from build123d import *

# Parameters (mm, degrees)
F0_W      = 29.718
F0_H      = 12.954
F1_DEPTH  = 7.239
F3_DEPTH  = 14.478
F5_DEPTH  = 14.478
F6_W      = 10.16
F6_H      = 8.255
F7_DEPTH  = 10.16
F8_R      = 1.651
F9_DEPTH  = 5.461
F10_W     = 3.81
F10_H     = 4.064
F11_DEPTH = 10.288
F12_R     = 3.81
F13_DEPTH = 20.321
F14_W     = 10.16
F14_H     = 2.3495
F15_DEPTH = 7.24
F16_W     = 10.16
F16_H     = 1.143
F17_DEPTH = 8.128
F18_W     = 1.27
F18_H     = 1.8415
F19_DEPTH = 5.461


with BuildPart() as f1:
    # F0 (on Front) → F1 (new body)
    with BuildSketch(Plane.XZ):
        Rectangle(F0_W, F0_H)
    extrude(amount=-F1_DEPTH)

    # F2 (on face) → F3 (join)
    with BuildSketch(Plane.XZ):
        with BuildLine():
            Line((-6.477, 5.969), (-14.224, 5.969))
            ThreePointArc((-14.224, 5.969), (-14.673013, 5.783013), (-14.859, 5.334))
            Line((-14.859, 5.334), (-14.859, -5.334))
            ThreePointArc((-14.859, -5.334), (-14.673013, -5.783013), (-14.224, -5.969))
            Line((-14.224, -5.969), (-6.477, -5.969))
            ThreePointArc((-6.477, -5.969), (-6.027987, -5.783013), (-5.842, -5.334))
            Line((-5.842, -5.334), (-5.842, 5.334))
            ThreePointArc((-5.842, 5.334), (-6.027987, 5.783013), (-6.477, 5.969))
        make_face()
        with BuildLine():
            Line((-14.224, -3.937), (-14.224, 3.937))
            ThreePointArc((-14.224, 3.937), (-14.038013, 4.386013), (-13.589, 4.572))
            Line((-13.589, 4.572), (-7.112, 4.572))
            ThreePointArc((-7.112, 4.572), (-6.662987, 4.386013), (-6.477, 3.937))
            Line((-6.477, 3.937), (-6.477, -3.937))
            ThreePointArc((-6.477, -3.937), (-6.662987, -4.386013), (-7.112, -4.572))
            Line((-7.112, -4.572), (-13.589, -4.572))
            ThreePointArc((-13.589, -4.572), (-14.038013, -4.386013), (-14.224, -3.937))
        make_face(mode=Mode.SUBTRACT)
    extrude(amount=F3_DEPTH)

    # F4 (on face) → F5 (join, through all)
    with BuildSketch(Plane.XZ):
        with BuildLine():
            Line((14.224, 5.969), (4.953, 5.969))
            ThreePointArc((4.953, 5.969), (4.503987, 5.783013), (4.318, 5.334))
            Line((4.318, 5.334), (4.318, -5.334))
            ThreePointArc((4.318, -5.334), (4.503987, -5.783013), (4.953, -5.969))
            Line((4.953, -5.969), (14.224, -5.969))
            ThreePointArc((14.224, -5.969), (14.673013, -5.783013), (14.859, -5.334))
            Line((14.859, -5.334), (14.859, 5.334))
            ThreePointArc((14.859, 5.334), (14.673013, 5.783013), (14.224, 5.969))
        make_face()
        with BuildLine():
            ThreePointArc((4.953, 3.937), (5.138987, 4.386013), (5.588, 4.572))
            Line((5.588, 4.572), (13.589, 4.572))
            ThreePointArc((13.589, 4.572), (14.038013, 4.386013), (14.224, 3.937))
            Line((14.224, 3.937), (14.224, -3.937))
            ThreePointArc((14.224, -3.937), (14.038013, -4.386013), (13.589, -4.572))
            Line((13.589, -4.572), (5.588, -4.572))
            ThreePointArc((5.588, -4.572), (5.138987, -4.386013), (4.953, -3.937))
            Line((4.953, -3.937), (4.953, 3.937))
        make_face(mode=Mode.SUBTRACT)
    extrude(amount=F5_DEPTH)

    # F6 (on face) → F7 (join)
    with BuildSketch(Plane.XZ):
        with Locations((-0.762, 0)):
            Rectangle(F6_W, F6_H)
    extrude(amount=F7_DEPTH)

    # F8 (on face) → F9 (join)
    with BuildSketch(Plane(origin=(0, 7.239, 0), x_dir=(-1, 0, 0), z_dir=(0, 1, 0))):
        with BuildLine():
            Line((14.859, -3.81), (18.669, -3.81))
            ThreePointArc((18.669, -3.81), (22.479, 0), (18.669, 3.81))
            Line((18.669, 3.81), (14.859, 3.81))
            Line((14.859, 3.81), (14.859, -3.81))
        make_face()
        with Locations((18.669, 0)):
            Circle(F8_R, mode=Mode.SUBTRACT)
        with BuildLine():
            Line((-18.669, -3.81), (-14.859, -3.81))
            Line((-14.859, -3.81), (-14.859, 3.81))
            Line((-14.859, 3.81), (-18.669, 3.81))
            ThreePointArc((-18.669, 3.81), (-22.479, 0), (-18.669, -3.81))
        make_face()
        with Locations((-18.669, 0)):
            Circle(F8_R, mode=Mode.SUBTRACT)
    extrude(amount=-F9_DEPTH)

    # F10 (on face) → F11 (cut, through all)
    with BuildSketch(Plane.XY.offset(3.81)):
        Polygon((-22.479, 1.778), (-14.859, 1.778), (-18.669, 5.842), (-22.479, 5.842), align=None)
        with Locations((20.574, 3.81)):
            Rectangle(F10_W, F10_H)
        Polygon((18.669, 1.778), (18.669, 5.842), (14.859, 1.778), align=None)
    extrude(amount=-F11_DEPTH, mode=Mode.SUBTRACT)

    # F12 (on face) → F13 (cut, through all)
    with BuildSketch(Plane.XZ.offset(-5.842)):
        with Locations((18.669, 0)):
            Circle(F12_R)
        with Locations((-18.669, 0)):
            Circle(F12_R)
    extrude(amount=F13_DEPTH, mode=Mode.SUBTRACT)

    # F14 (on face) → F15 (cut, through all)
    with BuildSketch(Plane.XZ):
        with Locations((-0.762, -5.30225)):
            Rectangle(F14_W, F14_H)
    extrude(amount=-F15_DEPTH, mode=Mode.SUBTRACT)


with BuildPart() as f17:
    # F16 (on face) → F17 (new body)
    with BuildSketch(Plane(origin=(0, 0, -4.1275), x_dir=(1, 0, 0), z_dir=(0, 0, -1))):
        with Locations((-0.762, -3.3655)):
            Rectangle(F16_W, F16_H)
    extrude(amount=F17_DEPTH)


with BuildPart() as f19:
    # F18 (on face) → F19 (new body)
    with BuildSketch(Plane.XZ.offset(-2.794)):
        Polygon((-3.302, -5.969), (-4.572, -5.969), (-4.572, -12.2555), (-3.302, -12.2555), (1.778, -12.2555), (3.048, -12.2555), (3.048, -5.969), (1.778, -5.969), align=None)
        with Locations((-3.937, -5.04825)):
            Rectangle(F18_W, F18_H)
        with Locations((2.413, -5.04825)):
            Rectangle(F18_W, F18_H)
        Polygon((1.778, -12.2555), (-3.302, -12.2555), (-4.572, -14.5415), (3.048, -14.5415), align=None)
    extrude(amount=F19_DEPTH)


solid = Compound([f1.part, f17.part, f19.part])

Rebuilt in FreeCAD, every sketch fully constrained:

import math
import FreeCAD as App
import Part
import Sketcher
Q = App.Units.Quantity


def add_polygon(sketch, points):
    """Adds a closed chain of lines whose ends are joined by coincident constraints."""
    first, n = sketch.GeometryCount, len(points)
    for a, b in zip(points, points[1:] + points[:1]):
        sketch.addGeometry(Part.LineSegment(App.Vector(*a, 0), App.Vector(*b, 0)), False)
    for i in range(n):
        sketch.addConstraint(Sketcher.Constraint("Coincident", first + i, 2, first + (i + 1) % n, 1))

doc = App.newDocument("Part")
body = doc.addObject("PartDesign::Body", "Body")

# Sketch on XZ plane
sketch1 = body.newObject("Sketcher::SketchObject", "Sketch")
sketch1.AttachmentSupport = (doc.getObject("XZ_Plane"), [""])
sketch1.MapMode = "FlatFace"
add_polygon(sketch1, [(-15, 6), (-15, -6), (15, -6), (15, 6)])  # lines 0-3
sketch1.addConstraint(Sketcher.Constraint("Vertical", 0))
sketch1.addConstraint(Sketcher.Constraint("Horizontal", 1))
sketch1.addConstraint(Sketcher.Constraint("Vertical", 2))
sketch1.addConstraint(Sketcher.Constraint("Horizontal", 3))
sketch1.addConstraint(Sketcher.Constraint("Symmetric", 0, 2, 2, 2, -1, 1))
sketch1.addConstraint(Sketcher.Constraint("DistanceX", 1, 1, 1, 2, Q("1.17 in")))
sketch1.addConstraint(Sketcher.Constraint("DistanceY", 0, 2, 0, 1, Q("0.51 in")))
pad1 = body.newObject("PartDesign::Pad", "Pad")
pad1.Profile = sketch1
pad1.Length = Q("0.285 in")
pad1.Reversed = True

# Sketch on XZ plane
sketch2 = body.newObject("Sketcher::SketchObject", "Sketch001")
sketch2.AttachmentSupport = (doc.getObject("XZ_Plane"), [""])
sketch2.MapMode = "FlatFace"
sketch2.addGeometry(Part.LineSegment(App.Vector(-6.5, 6, 0), App.Vector(-14.2, 6, 0)), False)
sketch2.addGeometry(Part.ArcOfCircle(Part.Circle(App.Vector(-14.2, 5.3, 0), App.Vector(0, 0, 1), 0.6), math.radians(90), math.radians(180)), False)
sketch2.addGeometry(Part.LineSegment(App.Vector(-14.9, 5.3, 0), App.Vector(-14.9, -5.3, 0)), False)
sketch2.addGeometry(Part.ArcOfCircle(Part.Circle(App.Vector(-14.2, -5.3, 0), App.Vector(0, 0, 1), 0.6), math.radians(180), math.radians(270)), False)
sketch2.addGeometry(Part.LineSegment(App.Vector(-14.2, -6, 0), App.Vector(-6.5, -6, 0)), False)
sketch2.addGeometry(Part.ArcOfCircle(Part.Circle(App.Vector(-6.5, -5.3, 0), App.Vector(0, 0, 1), 0.6), math.radians(-90), math.radians(0)), False)
sketch2.addGeometry(Part.LineSegment(App.Vector(-5.8, -5.3, 0), App.Vector(-5.8, 5.3, 0)), False)
sketch2.addGeometry(Part.ArcOfCircle(Part.Circle(App.Vector(-6.5, 5.3, 0), App.Vector(0, 0, 1), 0.6), math.radians(0), math.radians(90)), False)
sketch2.addGeometry(Part.ArcOfCircle(Part.Circle(App.Vector(-13.6, -3.9, 0), App.Vector(0, 0, 1), 0.6), math.radians(180), math.radians(270)), False)
sketch2.addGeometry(Part.LineSegment(App.Vector(-14.2, -3.9, 0), App.Vector(-14.2, 3.9, 0)), False)
sketch2.addGeometry(Part.ArcOfCircle(Part.Circle(App.Vector(-13.6, 3.9, 0), App.Vector(0, 0, 1), 0.6), math.radians(90), math.radians(180)), False)
sketch2.addGeometry(Part.LineSegment(App.Vector(-13.6, 4.6, 0), App.Vector(-7.1, 4.6, 0)), False)
sketch2.addGeometry(Part.ArcOfCircle(Part.Circle(App.Vector(-7.1, 3.9, 0), App.Vector(0, 0, 1), 0.6), math.radians(0), math.radians(90)), False)
sketch2.addGeometry(Part.LineSegment(App.Vector(-6.5, 3.9, 0), App.Vector(-6.5, -3.9, 0)), False)
sketch2.addGeometry(Part.ArcOfCircle(Part.Circle(App.Vector(-7.1, -3.9, 0), App.Vector(0, 0, 1), 0.6), math.radians(-90), math.radians(0)), False)
sketch2.addGeometry(Part.LineSegment(App.Vector(-7.1, -4.6, 0), App.Vector(-13.6, -4.6, 0)), False)
sketch2.addConstraint(Sketcher.Constraint("Tangent", 0, 2, 1, 1))
sketch2.addConstraint(Sketcher.Constraint("Tangent", 1, 2, 2, 1))
sketch2.addConstraint(Sketcher.Constraint("Tangent", 2, 2, 3, 1))
sketch2.addConstraint(Sketcher.Constraint("Tangent", 3, 2, 4, 1))
sketch2.addConstraint(Sketcher.Constraint("Tangent", 4, 2, 5, 1))
sketch2.addConstraint(Sketcher.Constraint("Tangent", 5, 2, 6, 1))
sketch2.addConstraint(Sketcher.Constraint("Tangent", 6, 2, 7, 1))
sketch2.addConstraint(Sketcher.Constraint("Tangent", 7, 2, 0, 1))
sketch2.addConstraint(Sketcher.Constraint("Tangent", 8, 1, 9, 1))
sketch2.addConstraint(Sketcher.Constraint("Tangent", 9, 2, 10, 2))
sketch2.addConstraint(Sketcher.Constraint("Tangent", 10, 1, 11, 1))
sketch2.addConstraint(Sketcher.Constraint("Tangent", 11, 2, 12, 2))
sketch2.addConstraint(Sketcher.Constraint("Tangent", 12, 1, 13, 1))
sketch2.addConstraint(Sketcher.Constraint("Tangent", 13, 2, 14, 2))
sketch2.addConstraint(Sketcher.Constraint("Tangent", 14, 1, 15, 1))
sketch2.addConstraint(Sketcher.Constraint("Tangent", 15, 2, 8, 2))
sketch2.addConstraint(Sketcher.Constraint("Horizontal", 0))
sketch2.addConstraint(Sketcher.Constraint("Vertical", 2))
sketch2.addConstraint(Sketcher.Constraint("Horizontal", 4))
sketch2.addConstraint(Sketcher.Constraint("Vertical", 6))
sketch2.addConstraint(Sketcher.Constraint("Vertical", 9))
sketch2.addConstraint(Sketcher.Constraint("Horizontal", 11))
sketch2.addConstraint(Sketcher.Constraint("Vertical", 13))
sketch2.addConstraint(Sketcher.Constraint("Horizontal", 15))
sketch2.addConstraint(Sketcher.Constraint("Equal", 1, 3))
sketch2.addConstraint(Sketcher.Constraint("Equal", 3, 5))
sketch2.addConstraint(Sketcher.Constraint("Equal", 5, 7))
sketch2.addConstraint(Sketcher.Constraint("Equal", 7, 8))
sketch2.addConstraint(Sketcher.Constraint("Equal", 8, 10))
sketch2.addConstraint(Sketcher.Constraint("Equal", 10, 12))
sketch2.addConstraint(Sketcher.Constraint("Equal", 12, 14))
sketch2.addConstraint(Sketcher.Constraint("Vertical", 3, 2, 8, 1))
sketch2.addConstraint(Sketcher.Constraint("Vertical", 7, 2, 12, 1))
sketch2.addConstraint(Sketcher.Constraint("Radius", 1, Q("0.025 in")))
sketch2.addConstraint(Sketcher.Constraint("DistanceY", 2, 2, 2, 1, Q("0.42 in")))
sketch2.addConstraint(Sketcher.Constraint("DistanceY", 9, 1, 9, 2, Q("0.31 in")))
sketch2.addConstraint(Sketcher.Constraint("DistanceX", 0, 2, 0, 1, Q("0.305 in")))
sketch2.addConstraint(Sketcher.Constraint("DistanceX", 1, 3, -1, 1, Q("0.56 in")))
sketch2.addConstraint(Sketcher.Constraint("DistanceY", -1, 1, 1, 3, Q("0.21 in")))
sketch2.addConstraint(Sketcher.Constraint("DistanceY", -1, 1, 10, 1, Q("0.18 in")))
pad2 = body.newObject("PartDesign::Pad", "Pad001")
pad2.Profile = sketch2
pad2.Length = Q("0.57 in")

# Sketch on XZ plane
sketch3 = body.newObject("Sketcher::SketchObject", "Sketch002")
sketch3.AttachmentSupport = (doc.getObject("XZ_Plane"), [""])
sketch3.MapMode = "FlatFace"
sketch3.addGeometry(Part.LineSegment(App.Vector(14.2, 6, 0), App.Vector(5, 6, 0)), False)
sketch3.addGeometry(Part.ArcOfCircle(Part.Circle(App.Vector(5, 5.3, 0), App.Vector(0, 0, 1), 0.6), math.radians(90), math.radians(180)), False)
sketch3.addGeometry(Part.LineSegment(App.Vector(4.3, 5.3, 0), App.Vector(4.3, -5.3, 0)), False)
sketch3.addGeometry(Part.ArcOfCircle(Part.Circle(App.Vector(5, -5.3, 0), App.Vector(0, 0, 1), 0.6), math.radians(180), math.radians(270)), False)
sketch3.addGeometry(Part.LineSegment(App.Vector(5, -6, 0), App.Vector(14.2, -6, 0)), False)
sketch3.addGeometry(Part.ArcOfCircle(Part.Circle(App.Vector(14.2, -5.3, 0), App.Vector(0, 0, 1), 0.6), math.radians(-90), math.radians(0)), False)
sketch3.addGeometry(Part.LineSegment(App.Vector(14.9, -5.3, 0), App.Vector(14.9, 5.3, 0)), False)
sketch3.addGeometry(Part.ArcOfCircle(Part.Circle(App.Vector(14.2, 5.3, 0), App.Vector(0, 0, 1), 0.6), math.radians(0), math.radians(90)), False)
sketch3.addGeometry(Part.LineSegment(App.Vector(5, -3.9, 0), App.Vector(5, 3.9, 0)), False)
sketch3.addGeometry(Part.ArcOfCircle(Part.Circle(App.Vector(5.6, 3.9, 0), App.Vector(0, 0, 1), 0.6), math.radians(90), math.radians(180)), False)
sketch3.addGeometry(Part.LineSegment(App.Vector(5.6, 4.6, 0), App.Vector(13.6, 4.6, 0)), False)
sketch3.addGeometry(Part.ArcOfCircle(Part.Circle(App.Vector(13.6, 3.9, 0), App.Vector(0, 0, 1), 0.6), math.radians(0), math.radians(90)), False)
sketch3.addGeometry(Part.LineSegment(App.Vector(14.2, 3.9, 0), App.Vector(14.2, -3.9, 0)), False)
sketch3.addGeometry(Part.ArcOfCircle(Part.Circle(App.Vector(13.6, -3.9, 0), App.Vector(0, 0, 1), 0.6), math.radians(-90), math.radians(0)), False)
sketch3.addGeometry(Part.LineSegment(App.Vector(13.6, -4.6, 0), App.Vector(5.6, -4.6, 0)), False)
sketch3.addGeometry(Part.ArcOfCircle(Part.Circle(App.Vector(5.6, -3.9, 0), App.Vector(0, 0, 1), 0.6), math.radians(180), math.radians(270)), False)
sketch3.addConstraint(Sketcher.Constraint("Tangent", 0, 2, 1, 1))
sketch3.addConstraint(Sketcher.Constraint("Tangent", 1, 2, 2, 1))
sketch3.addConstraint(Sketcher.Constraint("Tangent", 2, 2, 3, 1))
sketch3.addConstraint(Sketcher.Constraint("Tangent", 3, 2, 4, 1))
sketch3.addConstraint(Sketcher.Constraint("Tangent", 4, 2, 5, 1))
sketch3.addConstraint(Sketcher.Constraint("Tangent", 5, 2, 6, 1))
sketch3.addConstraint(Sketcher.Constraint("Tangent", 6, 2, 7, 1))
sketch3.addConstraint(Sketcher.Constraint("Tangent", 7, 2, 0, 1))
sketch3.addConstraint(Sketcher.Constraint("Tangent", 8, 2, 9, 2))
sketch3.addConstraint(Sketcher.Constraint("Tangent", 9, 1, 10, 1))
sketch3.addConstraint(Sketcher.Constraint("Tangent", 10, 2, 11, 2))
sketch3.addConstraint(Sketcher.Constraint("Tangent", 11, 1, 12, 1))
sketch3.addConstraint(Sketcher.Constraint("Tangent", 12, 2, 13, 2))
sketch3.addConstraint(Sketcher.Constraint("Tangent", 13, 1, 14, 1))
sketch3.addConstraint(Sketcher.Constraint("Tangent", 14, 2, 15, 2))
sketch3.addConstraint(Sketcher.Constraint("Tangent", 15, 1, 8, 1))
sketch3.addConstraint(Sketcher.Constraint("Horizontal", 0))
sketch3.addConstraint(Sketcher.Constraint("Vertical", 2))
sketch3.addConstraint(Sketcher.Constraint("Horizontal", 4))
sketch3.addConstraint(Sketcher.Constraint("Vertical", 6))
sketch3.addConstraint(Sketcher.Constraint("Vertical", 8))
sketch3.addConstraint(Sketcher.Constraint("Horizontal", 10))
sketch3.addConstraint(Sketcher.Constraint("Vertical", 12))
sketch3.addConstraint(Sketcher.Constraint("Horizontal", 14))
sketch3.addConstraint(Sketcher.Constraint("Equal", 1, 3))
sketch3.addConstraint(Sketcher.Constraint("Equal", 3, 5))
sketch3.addConstraint(Sketcher.Constraint("Equal", 5, 7))
sketch3.addConstraint(Sketcher.Constraint("Equal", 7, 9))
sketch3.addConstraint(Sketcher.Constraint("Equal", 9, 11))
sketch3.addConstraint(Sketcher.Constraint("Equal", 11, 13))
sketch3.addConstraint(Sketcher.Constraint("Equal", 13, 15))
sketch3.addConstraint(Sketcher.Constraint("Vertical", 3, 2, 8, 2))
sketch3.addConstraint(Sketcher.Constraint("Vertical", 7, 2, 11, 1))
sketch3.addConstraint(Sketcher.Constraint("Radius", 1, Q("0.025 in")))
sketch3.addConstraint(Sketcher.Constraint("DistanceY", 2, 2, 2, 1, Q("0.42 in")))
sketch3.addConstraint(Sketcher.Constraint("DistanceY", 8, 1, 8, 2, Q("0.31 in")))
sketch3.addConstraint(Sketcher.Constraint("DistanceX", 0, 2, 0, 1, Q("0.365 in")))
sketch3.addConstraint(Sketcher.Constraint("DistanceY", -1, 1, 1, 3, Q("0.21 in")))
sketch3.addConstraint(Sketcher.Constraint("DistanceX", -1, 1, 5, 3, Q("0.56 in")))
sketch3.addConstraint(Sketcher.Constraint("DistanceY", -1, 1, 9, 1, Q("0.18 in")))
pad3 = body.newObject("PartDesign::Pad", "Pad002")
pad3.Profile = sketch3
pad3.Length = Q("0.57 in")

# Sketch on XZ plane
sketch4 = body.newObject("Sketcher::SketchObject", "Sketch003")
sketch4.AttachmentSupport = (doc.getObject("XZ_Plane"), [""])
sketch4.MapMode = "FlatFace"
add_polygon(sketch4, [(-6, 4), (-6, -4), (4, -4), (4, 4)])  # lines 0-3
sketch4.addConstraint(Sketcher.Constraint("Vertical", 0))
sketch4.addConstraint(Sketcher.Constraint("Horizontal", 1))
sketch4.addConstraint(Sketcher.Constraint("Vertical", 2))
sketch4.addConstraint(Sketcher.Constraint("Horizontal", 3))
sketch4.addConstraint(Sketcher.Constraint("DistanceX", 1, 1, 1, 2, Q("0.4 in")))
sketch4.addConstraint(Sketcher.Constraint("DistanceY", 0, 2, 0, 1, Q("0.325 in")))
sketch4.addConstraint(Sketcher.Constraint("DistanceX", 0, 2, -1, 1, Q("0.23 in")))
sketch4.addConstraint(Sketcher.Constraint("DistanceY", 0, 2, -1, 1, Q("0.1625 in")))
pad4 = body.newObject("PartDesign::Pad", "Pad003")
pad4.Profile = sketch4
pad4.Length = Q("0.4 in")

# Sketch on XZ plane
sketch5 = body.newObject("Sketcher::SketchObject", "Sketch004")
sketch5.AttachmentSupport = (doc.getObject("XZ_Plane"), [""])
sketch5.MapMode = "FlatFace"
sketch5.AttachmentOffset = App.Placement(App.Vector(0, 0, -0.285 * 25.4), App.Rotation())
sketch5.addGeometry(Part.LineSegment(App.Vector(-14.9, -3.8, 0), App.Vector(-18.7, -3.8, 0)), False)
sketch5.addGeometry(Part.ArcOfCircle(Part.Circle(App.Vector(-18.7, 0, 0), App.Vector(0, 0, 1), 3.8), math.radians(90), math.radians(270)), False)
sketch5.addGeometry(Part.LineSegment(App.Vector(-18.7, 3.8, 0), App.Vector(-14.9, 3.8, 0)), False)
sketch5.addGeometry(Part.LineSegment(App.Vector(-14.9, 3.8, 0), App.Vector(-14.9, -3.8, 0)), False)
sketch5.addGeometry(Part.Circle(App.Vector(-18.7, 0, 0), App.Vector(0, 0, 1), 1.7), False)
sketch5.addGeometry(Part.LineSegment(App.Vector(18.7, -3.8, 0), App.Vector(14.9, -3.8, 0)), False)
sketch5.addGeometry(Part.LineSegment(App.Vector(14.9, -3.8, 0), App.Vector(14.9, 3.8, 0)), False)
sketch5.addGeometry(Part.LineSegment(App.Vector(14.9, 3.8, 0), App.Vector(18.7, 3.8, 0)), False)
sketch5.addGeometry(Part.ArcOfCircle(Part.Circle(App.Vector(18.7, 0, 0), App.Vector(0, 0, 1), 3.8), math.radians(-90), math.radians(90)), False)
sketch5.addGeometry(Part.Circle(App.Vector(18.7, 0, 0), App.Vector(0, 0, 1), 1.7), False)
sketch5.addConstraint(Sketcher.Constraint("Tangent", 0, 2, 1, 2))
sketch5.addConstraint(Sketcher.Constraint("Tangent", 1, 1, 2, 1))
sketch5.addConstraint(Sketcher.Constraint("Coincident", 2, 2, 3, 1))
sketch5.addConstraint(Sketcher.Constraint("Coincident", 3, 2, 0, 1))
sketch5.addConstraint(Sketcher.Constraint("Coincident", 5, 2, 6, 1))
sketch5.addConstraint(Sketcher.Constraint("Coincident", 6, 2, 7, 1))
sketch5.addConstraint(Sketcher.Constraint("Tangent", 7, 2, 8, 2))
sketch5.addConstraint(Sketcher.Constraint("Tangent", 8, 1, 5, 1))
sketch5.addConstraint(Sketcher.Constraint("Horizontal", 0))
sketch5.addConstraint(Sketcher.Constraint("Horizontal", 2))
sketch5.addConstraint(Sketcher.Constraint("Vertical", 3))
sketch5.addConstraint(Sketcher.Constraint("Horizontal", 5))
sketch5.addConstraint(Sketcher.Constraint("Vertical", 6))
sketch5.addConstraint(Sketcher.Constraint("Horizontal", 7))
sketch5.addConstraint(Sketcher.Constraint("Coincident", 4, 3, 1, 3))
sketch5.addConstraint(Sketcher.Constraint("Coincident", 9, 3, 8, 3))
sketch5.addConstraint(Sketcher.Constraint("Equal", 1, 8))
sketch5.addConstraint(Sketcher.Constraint("Equal", 4, 9))
sketch5.addConstraint(Sketcher.Constraint("Symmetric", 1, 3, 8, 3, -1, 1))
sketch5.addConstraint(Sketcher.Constraint("Symmetric", 3, 2, 5, 2, -2))
sketch5.addConstraint(Sketcher.Constraint("Diameter", 4, Q("0.13 in")))
sketch5.addConstraint(Sketcher.Constraint("Radius", 1, Q("0.15 in")))
sketch5.addConstraint(Sketcher.Constraint("DistanceX", 0, 2, 0, 1, Q("0.15 in")))
sketch5.addConstraint(Sketcher.Constraint("DistanceX", 1, 3, 8, 3, Q("1.47 in")))
pad5 = body.newObject("PartDesign::Pad", "Pad004")
pad5.Profile = sketch5
pad5.Length = Q("0.215 in")

# Sketch on XY plane
sketch6 = body.newObject("Sketcher::SketchObject", "Sketch005")
sketch6.AttachmentSupport = (doc.getObject("XY_Plane"), [""])
sketch6.MapMode = "FlatFace"
sketch6.AttachmentOffset = App.Placement(App.Vector(0, 0, 0.15 * 25.4), App.Rotation())
add_polygon(sketch6, [(-22.5, 1.8), (-14.9, 1.8), (-18.7, 5.8), (-22.5, 5.8)])  # lines 0-3
add_polygon(sketch6, [(22.5, 1.8), (22.5, 5.8), (18.7, 5.8), (14.9, 1.8)])  # lines 4-7
sketch6.addConstraint(Sketcher.Constraint("Horizontal", 0))
sketch6.addConstraint(Sketcher.Constraint("Horizontal", 2))
sketch6.addConstraint(Sketcher.Constraint("Vertical", 3))
sketch6.addConstraint(Sketcher.Constraint("Vertical", 4))
sketch6.addConstraint(Sketcher.Constraint("Horizontal", 5))
sketch6.addConstraint(Sketcher.Constraint("Horizontal", 7))
sketch6.addConstraint(Sketcher.Constraint("Symmetric", 2, 2, 4, 2, -2))
sketch6.addConstraint(Sketcher.Constraint("Symmetric", 0, 2, 6, 2, -2))
sketch6.addConstraint(Sketcher.Constraint("Equal", 2, 5))
sketch6.addConstraint(Sketcher.Constraint("DistanceX", 0, 1, 0, 2, Q("0.3 in")))
sketch6.addConstraint(Sketcher.Constraint("DistanceX", 2, 2, 2, 1, Q("0.15 in")))
sketch6.addConstraint(Sketcher.Constraint("DistanceY", 3, 2, 3, 1, Q("0.16 in")))
sketch6.addConstraint(Sketcher.Constraint("DistanceY", -1, 1, 0, 2, Q("0.07 in")))
sketch6.addConstraint(Sketcher.Constraint("DistanceX", 0, 2, 4, 2, Q("1.47 in")))
pocket1 = body.newObject("PartDesign::Pocket", "Pocket")
pocket1.Profile = sketch6
pocket1.Type = "ThroughAll"

# Sketch on XZ plane
sketch7 = body.newObject("Sketcher::SketchObject", "Sketch006")
sketch7.AttachmentSupport = (doc.getObject("XZ_Plane"), [""])
sketch7.MapMode = "FlatFace"
sketch7.AttachmentOffset = App.Placement(App.Vector(0, 0, -0.23 * 25.4), App.Rotation())
sketch7.addGeometry(Part.Circle(App.Vector(18.7, 0, 0), App.Vector(0, 0, 1), 3.8), False)
sketch7.addGeometry(Part.Circle(App.Vector(-18.7, 0, 0), App.Vector(0, 0, 1), 3.8), False)
sketch7.addConstraint(Sketcher.Constraint("Equal", 0, 1))
sketch7.addConstraint(Sketcher.Constraint("Symmetric", 0, 3, 1, 3, -1, 1))
sketch7.addConstraint(Sketcher.Constraint("PointOnObject", 0, 3, -1))
sketch7.addConstraint(Sketcher.Constraint("Diameter", 0, Q("0.3 in")))
sketch7.addConstraint(Sketcher.Constraint("DistanceX", 1, 3, 0, 3, Q("1.47 in")))
pocket2 = body.newObject("PartDesign::Pocket", "Pocket001")
pocket2.Profile = sketch7
pocket2.Type = "ThroughAll"
pocket2.Reversed = True

# Sketch on XZ plane
sketch8 = body.newObject("Sketcher::SketchObject", "Sketch007")
sketch8.AttachmentSupport = (doc.getObject("XZ_Plane"), [""])
sketch8.MapMode = "FlatFace"
add_polygon(sketch8, [(-5.8, -4.1), (-5.8, -6.5), (4.3, -6.5), (4.3, -4.1)])  # lines 0-3
sketch8.addConstraint(Sketcher.Constraint("Vertical", 0))
sketch8.addConstraint(Sketcher.Constraint("Horizontal", 1))
sketch8.addConstraint(Sketcher.Constraint("Vertical", 2))
sketch8.addConstraint(Sketcher.Constraint("Horizontal", 3))
sketch8.addConstraint(Sketcher.Constraint("DistanceX", 1, 1, 1, 2, Q("0.4 in")))
sketch8.addConstraint(Sketcher.Constraint("DistanceX", 0, 2, -1, 1, Q("0.23 in")))
sketch8.addConstraint(Sketcher.Constraint("DistanceY", 0, 2, 0, 1, Q("0.0925 in")))
sketch8.addConstraint(Sketcher.Constraint("DistanceY", 0, 2, -1, 1, Q("0.255 in")))
pocket3 = body.newObject("PartDesign::Pocket", "Pocket002")
pocket3.Profile = sketch8
pocket3.Type = "ThroughAll"
body2 = doc.addObject("PartDesign::Body", "Body001")

# Sketch on XY plane
sketch9 = body2.newObject("Sketcher::SketchObject", "Sketch008")
sketch9.AttachmentSupport = (doc.getObject("XY_Plane001"), [""])
sketch9.MapMode = "FlatFace"
sketch9.AttachmentOffset = App.Placement(App.Vector(0, 0, -0.1625 * 25.4), App.Rotation())
add_polygon(sketch9, [(-5.8, 2.8), (-5.8, 3.9), (4.3, 3.9), (4.3, 2.8)])  # lines 0-3
sketch9.addConstraint(Sketcher.Constraint("Vertical", 0))
sketch9.addConstraint(Sketcher.Constraint("Horizontal", 1))
sketch9.addConstraint(Sketcher.Constraint("Vertical", 2))
sketch9.addConstraint(Sketcher.Constraint("Horizontal", 3))
sketch9.addConstraint(Sketcher.Constraint("DistanceX", 1, 1, 1, 2, Q("0.4 in")))
sketch9.addConstraint(Sketcher.Constraint("DistanceY", 0, 1, 0, 2, Q("0.045 in")))
sketch9.addConstraint(Sketcher.Constraint("DistanceX", 0, 2, -1, 1, Q("0.23 in")))
sketch9.addConstraint(Sketcher.Constraint("DistanceY", -1, 1, 2, 2, Q("0.11 in")))
pad6 = body2.newObject("PartDesign::Pad", "Pad005")
pad6.Profile = sketch9
pad6.Length = Q("0.32 in")
pad6.Reversed = True
body3 = doc.addObject("PartDesign::Body", "Body002")

# Sketch on XZ plane
sketch10 = body3.newObject("Sketcher::SketchObject", "Sketch009")
sketch10.AttachmentSupport = (doc.getObject("XZ_Plane002"), [""])
sketch10.MapMode = "FlatFace"
sketch10.AttachmentOffset = App.Placement(App.Vector(0, 0, -0.11 * 25.4), App.Rotation())
add_polygon(sketch10, [(-4.6, -12.3), (-3.3, -12.3), (-4.6, -14.5), (3, -14.5), (1.8, -12.3), (3, -12.3), (3, -4.1), (1.8, -4.1), (1.8, -6), (-3.3, -6), (-3.3, -4.1), (-4.6, -4.1)])  # lines 0-11
sketch10.addConstraint(Sketcher.Constraint("Horizontal", 0))
sketch10.addConstraint(Sketcher.Constraint("Horizontal", 2))
sketch10.addConstraint(Sketcher.Constraint("Horizontal", 4))
sketch10.addConstraint(Sketcher.Constraint("Vertical", 5))
sketch10.addConstraint(Sketcher.Constraint("Horizontal", 6))
sketch10.addConstraint(Sketcher.Constraint("Vertical", 7))
sketch10.addConstraint(Sketcher.Constraint("Horizontal", 8))
sketch10.addConstraint(Sketcher.Constraint("Vertical", 9))
sketch10.addConstraint(Sketcher.Constraint("Horizontal", 10))
sketch10.addConstraint(Sketcher.Constraint("Vertical", 11))
sketch10.addConstraint(Sketcher.Constraint("Horizontal", 0, 2, 3, 2))
sketch10.addConstraint(Sketcher.Constraint("Horizontal", 6, 2, 9, 2))
sketch10.addConstraint(Sketcher.Constraint("Vertical", 2, 2, 4, 2))
sketch10.addConstraint(Sketcher.Constraint("Vertical", 3, 2, 6, 2))
sketch10.addConstraint(Sketcher.Constraint("Vertical", 0, 2, 8, 2))
sketch10.addConstraint(Sketcher.Constraint("Vertical", 1, 2, 10, 2))
sketch10.addConstraint(Sketcher.Constraint("Equal", 0, 4))
sketch10.addConstraint(Sketcher.Constraint("DistanceX", 2, 1, 2, 2, Q("0.3 in")))
sketch10.addConstraint(Sketcher.Constraint("DistanceX", 8, 2, 8, 1, Q("0.2 in")))
sketch10.addConstraint(Sketcher.Constraint("DistanceY", 5, 1, 5, 2, Q("0.32 in")))
sketch10.addConstraint(Sketcher.Constraint("DistanceX", 0, 2, -1, 1, Q("0.13 in")))
sketch10.addConstraint(Sketcher.Constraint("DistanceY", 1, 2, 0, 2, Q("0.09 in")))
sketch10.addConstraint(Sketcher.Constraint("DistanceY", 7, 2, 7, 1, Q("0.0725 in")))
sketch10.addConstraint(Sketcher.Constraint("DistanceY", 7, 2, -1, 1, Q("0.235 in")))
pad7 = body3.newObject("PartDesign::Pad", "Pad006")
pad7.Profile = sketch10
pad7.Length = Q("0.215 in")

doc.recompute()
